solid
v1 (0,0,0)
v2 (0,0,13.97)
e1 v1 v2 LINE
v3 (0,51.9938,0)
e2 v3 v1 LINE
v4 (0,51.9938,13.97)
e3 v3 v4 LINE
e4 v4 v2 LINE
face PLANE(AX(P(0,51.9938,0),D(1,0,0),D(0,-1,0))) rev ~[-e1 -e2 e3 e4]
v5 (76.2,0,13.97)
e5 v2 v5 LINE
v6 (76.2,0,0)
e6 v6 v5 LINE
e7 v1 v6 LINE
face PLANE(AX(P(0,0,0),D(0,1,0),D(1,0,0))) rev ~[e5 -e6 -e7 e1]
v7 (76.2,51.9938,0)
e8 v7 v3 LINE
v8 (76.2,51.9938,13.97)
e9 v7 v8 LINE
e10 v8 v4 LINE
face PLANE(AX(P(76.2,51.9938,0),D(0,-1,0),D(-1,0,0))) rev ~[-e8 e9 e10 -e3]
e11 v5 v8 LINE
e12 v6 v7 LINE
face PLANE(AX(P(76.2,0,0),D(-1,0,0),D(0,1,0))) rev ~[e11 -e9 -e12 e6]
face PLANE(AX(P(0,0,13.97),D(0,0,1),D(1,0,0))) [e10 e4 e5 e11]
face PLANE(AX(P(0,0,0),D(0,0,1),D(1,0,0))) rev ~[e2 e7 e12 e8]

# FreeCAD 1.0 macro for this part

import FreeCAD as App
import Part
import Sketcher

V = App.Vector
Q = App.Units.Quantity


def add_polygon(sketch, points):
    """Adds a closed chain of lines whose ends are joined by coincident constraints."""
    first, n = sketch.GeometryCount, len(points)
    for a, b in zip(points, points[1:] + points[:1]):
        sketch.addGeometry(Part.LineSegment(App.Vector(*a, 0), App.Vector(*b, 0)), False)
    for i in range(n):
        sketch.addConstraint(Sketcher.Constraint("Coincident", first + i, 2, first + (i + 1) % n, 1))

doc = App.newDocument("Part")
body = doc.addObject("PartDesign::Body", "Body")

# Sketch on XY plane
sketch1 = doc.addObject("Sketcher::SketchObject", "Sketch")
body.addObject(sketch1)
sketch1.AttachmentSupport = (doc.XY_Plane, [""])
sketch1.MapMode = "FlatFace"
add_polygon(sketch1, [(0, 52), (0, 0), (76, 0), (76, 52)])  # lines 0-3
sketch1.addConstraint(Sketcher.Constraint("Vertical", 0))
sketch1.addConstraint(Sketcher.Constraint("Horizontal", 1))
sketch1.addConstraint(Sketcher.Constraint("Vertical", 2))
sketch1.addConstraint(Sketcher.Constraint("Horizontal", 3))
sketch1.addConstraint(Sketcher.Constraint("Coincident", 0, 2, -1, 1))
sketch1.addConstraint(Sketcher.Constraint("DistanceX", 1, 1, 1, 2, Q("3 in")))
sketch1.addConstraint(Sketcher.Constraint("DistanceY", 0, 2, 0, 1, Q("2.047 in")))
pad1 = doc.addObject("PartDesign::Pad", "Pad")
body.addObject(pad1)
pad1.Profile = sketch1
pad1.Length = Q("0.55 in")

doc.recompute()
